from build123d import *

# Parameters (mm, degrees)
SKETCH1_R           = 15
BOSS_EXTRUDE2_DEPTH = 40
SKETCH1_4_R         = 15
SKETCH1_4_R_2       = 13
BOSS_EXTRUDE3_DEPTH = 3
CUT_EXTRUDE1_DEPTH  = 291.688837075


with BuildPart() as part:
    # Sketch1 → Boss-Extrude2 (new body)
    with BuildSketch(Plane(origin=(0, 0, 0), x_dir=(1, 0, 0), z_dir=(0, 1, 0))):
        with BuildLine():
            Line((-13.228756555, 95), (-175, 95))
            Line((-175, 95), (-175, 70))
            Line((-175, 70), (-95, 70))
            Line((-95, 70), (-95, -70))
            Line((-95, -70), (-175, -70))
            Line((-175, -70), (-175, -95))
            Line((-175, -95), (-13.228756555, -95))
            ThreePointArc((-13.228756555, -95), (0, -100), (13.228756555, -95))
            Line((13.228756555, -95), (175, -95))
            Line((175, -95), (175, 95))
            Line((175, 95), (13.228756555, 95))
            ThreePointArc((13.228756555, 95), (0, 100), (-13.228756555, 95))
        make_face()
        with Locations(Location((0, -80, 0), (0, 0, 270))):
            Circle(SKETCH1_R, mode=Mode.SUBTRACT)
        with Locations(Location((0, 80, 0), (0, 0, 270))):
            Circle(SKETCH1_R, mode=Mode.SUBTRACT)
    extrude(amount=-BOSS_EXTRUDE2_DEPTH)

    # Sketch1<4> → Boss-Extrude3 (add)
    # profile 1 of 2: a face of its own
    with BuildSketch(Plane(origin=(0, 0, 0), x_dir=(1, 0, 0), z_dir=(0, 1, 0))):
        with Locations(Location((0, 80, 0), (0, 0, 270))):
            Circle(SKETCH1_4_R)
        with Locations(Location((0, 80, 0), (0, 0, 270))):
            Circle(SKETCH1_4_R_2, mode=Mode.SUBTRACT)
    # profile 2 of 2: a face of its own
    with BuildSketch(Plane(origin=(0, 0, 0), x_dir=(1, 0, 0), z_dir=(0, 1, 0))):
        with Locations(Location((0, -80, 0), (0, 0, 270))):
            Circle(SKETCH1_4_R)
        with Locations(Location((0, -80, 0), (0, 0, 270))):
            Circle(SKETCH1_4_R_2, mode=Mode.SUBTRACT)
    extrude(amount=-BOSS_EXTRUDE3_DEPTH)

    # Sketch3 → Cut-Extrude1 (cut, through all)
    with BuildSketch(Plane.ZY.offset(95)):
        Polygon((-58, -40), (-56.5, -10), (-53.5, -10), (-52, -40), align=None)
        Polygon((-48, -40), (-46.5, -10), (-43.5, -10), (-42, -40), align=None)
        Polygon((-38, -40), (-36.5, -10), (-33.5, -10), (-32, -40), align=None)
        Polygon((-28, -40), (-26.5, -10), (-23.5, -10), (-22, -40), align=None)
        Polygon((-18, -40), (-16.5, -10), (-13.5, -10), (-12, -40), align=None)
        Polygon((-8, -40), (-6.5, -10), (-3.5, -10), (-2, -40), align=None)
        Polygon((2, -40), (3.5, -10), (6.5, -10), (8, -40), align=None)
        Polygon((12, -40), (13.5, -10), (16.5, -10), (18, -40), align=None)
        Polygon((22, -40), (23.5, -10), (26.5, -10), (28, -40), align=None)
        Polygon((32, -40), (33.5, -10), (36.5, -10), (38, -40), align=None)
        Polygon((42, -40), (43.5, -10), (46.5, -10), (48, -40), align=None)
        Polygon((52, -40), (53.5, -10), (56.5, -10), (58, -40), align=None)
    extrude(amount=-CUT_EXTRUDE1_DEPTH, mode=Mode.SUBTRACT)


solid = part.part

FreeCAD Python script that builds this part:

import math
import FreeCAD as App
import Part
import Sketcher


def add_polygon(sketch, points):
    """Adds a closed chain of lines whose ends are joined by coincident constraints."""
    first, n = sketch.GeometryCount, len(points)
    for a, b in zip(points, points[1:] + points[:1]):
        sketch.addGeometry(Part.LineSegment(App.Vector(*a, 0), App.Vector(*b, 0)), False)
    for i in range(n):
        sketch.addConstraint(Sketcher.Constraint("Coincident", first + i, 2, first + (i + 1) % n, 1))

doc = App.newDocument("Part")
body = doc.addObject("PartDesign::Body", "Body")

# Sketch on XZ plane
sketch1 = doc.addObject("Sketcher::SketchObject", "Sketch")
body.addObject(sketch1)
sketch1.AttachmentSupport = (doc.XZ_Plane, [""])
sketch1.MapMode = "FlatFace"
sketch1.addGeometry([
    Part.LineSegment(App.Vector(-13.228757, -95, 0), App.Vector(-175, -95, 0)),  # 0
    Part.LineSegment(App.Vector(-175, -95, 0), App.Vector(-175, -70, 0)),  # 1
    Part.LineSegment(App.Vector(-175, -70, 0), App.Vector(-95, -70, 0)),  # 2
    Part.LineSegment(App.Vector(-95, -70, 0), App.Vector(-95, 70, 0)),  # 3
    Part.LineSegment(App.Vector(-95, 70, 0), App.Vector(-175, 70, 0)),  # 4
    Part.LineSegment(App.Vector(-175, 70, 0), App.Vector(-175, 95, 0)),  # 5
    Part.LineSegment(App.Vector(-175, 95, 0), App.Vector(-13.228757, 95, 0)),  # 6
    Part.ArcOfCircle(Part.Circle(App.Vector(0, 80, 0), App.Vector(0, 0, 1), 20), math.radians(48.590378), math.radians(131.409622)),  # 7
    Part.LineSegment(App.Vector(13.228757, 95, 0), App.Vector(175, 95, 0)),  # 8
    Part.LineSegment(App.Vector(175, 95, 0), App.Vector(175, -95, 0)),  # 9
    Part.LineSegment(App.Vector(175, -95, 0), App.Vector(13.228757, -95, 0)),  # 10
    Part.ArcOfCircle(Part.Circle(App.Vector(0, -80, 0), App.Vector(0, 0, 1), 20), math.radians(-131.409622), math.radians(-48.590378)),  # 11
    Part.Circle(App.Vector(0, 80, 0), App.Vector(0, 0, 1), 15),  # 12
    Part.Circle(App.Vector(0, -80, 0), App.Vector(0, 0, 1), 15),  # 13
], False)
sketch1.addConstraint([
    Sketcher.Constraint("Coincident", 0, 2, 1, 1),
    Sketcher.Constraint("Coincident", 1, 2, 2, 1),
    Sketcher.Constraint("Coincident", 2, 2, 3, 1),
    Sketcher.Constraint("Coincident", 3, 2, 4, 1),
    Sketcher.Constraint("Coincident", 4, 2, 5, 1),
    Sketcher.Constraint("Coincident", 5, 2, 6, 1),
    Sketcher.Constraint("Coincident", 6, 2, 7, 2),
    Sketcher.Constraint("Coincident", 7, 1, 8, 1),
    Sketcher.Constraint("Coincident", 8, 2, 9, 1),
    Sketcher.Constraint("Coincident", 9, 2, 10, 1),
    Sketcher.Constraint("Coincident", 10, 2, 11, 2),
    Sketcher.Constraint("Coincident", 11, 1, 0, 1),
    Sketcher.Constraint("Horizontal", 0),
    Sketcher.Constraint("Vertical", 1),
    Sketcher.Constraint("Horizontal", 2),
    Sketcher.Constraint("Vertical", 3),
    Sketcher.Constraint("Horizontal", 4),
    Sketcher.Constraint("Vertical", 5),
    Sketcher.Constraint("Horizontal", 6),
    Sketcher.Constraint("Horizontal", 8),
    Sketcher.Constraint("Vertical", 9),
    Sketcher.Constraint("Horizontal", 10),
    Sketcher.Constraint("Coincident", 12, 3, 7, 3),
    Sketcher.Constraint("Coincident", 13, 3, 11, 3),
    Sketcher.Constraint("Equal", 7, 11),
    Sketcher.Constraint("Equal", 12, 13),
    Sketcher.Constraint("Symmetric", 7, 3, 11, 3, -1, 1),
    Sketcher.Constraint("Symmetric", 0, 2, 8, 2, -1, 1),
    Sketcher.Constraint("Symmetric", 5, 2, 9, 2, -1, 1),
    Sketcher.Constraint("Symmetric", 6, 2, 7, 1, -2),
    Sketcher.Constraint("Equal", 1, 5),
    Sketcher.Constraint("Diameter", 12, 30.0),
    Sketcher.Constraint("Radius", 7, 20.0),
    Sketcher.Constraint("DistanceX", 2, 1, 2, 2, 80.0),
    Sketcher.Constraint("DistanceY", 1, 1, 1, 2, 25.0),
    Sketcher.Constraint("DistanceY", 3, 1, 3, 2, 140.0),
    Sketcher.Constraint("DistanceY", -1, 1, 7, 3, 80.0),
    Sketcher.Constraint("DistanceX", 0, 2, -1, 1, 175.0),
])
pad1 = doc.addObject("PartDesign::Pad", "Pad")
body.addObject(pad1)
pad1.Profile = sketch1
pad1.Length = 40

# Sketch on XZ plane
sketch2 = doc.addObject("Sketcher::SketchObject", "Sketch001")
body.addObject(sketch2)
sketch2.AttachmentSupport = (doc.XZ_Plane, [""])
sketch2.MapMode = "FlatFace"
sketch2.addGeometry([
    Part.Circle(App.Vector(0, -80, 0), App.Vector(0, 0, 1), 15),
    Part.Circle(App.Vector(0, -80, 0), App.Vector(0, 0, 1), 13),
    Part.Circle(App.Vector(0, 80, 0), App.Vector(0, 0, 1), 15),
    Part.Circle(App.Vector(0, 80, 0), App.Vector(0, 0, 1), 13),
], False)
sketch2.addConstraint([
    Sketcher.Constraint("Coincident", 1, 3, 0, 3),
    Sketcher.Constraint("Coincident", 3, 3, 2, 3),
    Sketcher.Constraint("Equal", 0, 2),
    Sketcher.Constraint("Equal", 1, 3),
    Sketcher.Constraint("Symmetric", 0, 3, 2, 3, -1, 1),
    Sketcher.Constraint("PointOnObject", 0, 3, -2),
    Sketcher.Constraint("Diameter", 0, 30.0),
    Sketcher.Constraint("Diameter", 1, 26.0),
    Sketcher.Constraint("DistanceY", 0, 3, -1, 1, 80.0),
])
pad2 = doc.addObject("PartDesign::Pad", "Pad001")
body.addObject(pad2)
pad2.Profile = sketch2
pad2.Length = 3

# Sketch on YZ plane
sketch3 = doc.addObject("Sketcher::SketchObject", "Sketch002")
body.addObject(sketch3)
sketch3.AttachmentSupport = (doc.YZ_Plane, [""])
sketch3.MapMode = "FlatFace"
sketch3.AttachmentOffset = App.Placement(App.Vector(0, 0, -95), App.Rotation())
add_polygon(sketch3, [(-10, -56.5), (-40, -58), (-40, -52), (-10, -53.5)])  # lines 0-3
add_polygon(sketch3, [(-10, -46.5), (-40, -48), (-40, -42), (-10, -43.5)])  # lines 4-7
add_polygon(sketch3, [(-10, -36.5), (-40, -38), (-40, -32), (-10, -33.5)])  # lines 8-11
add_polygon(sketch3, [(-10, -26.5), (-40, -28), (-40, -22), (-10, -23.5)])  # lines 12-15
add_polygon(sketch3, [(-10, -16.5), (-40, -18), (-40, -12), (-10, -13.5)])  # lines 16-19
add_polygon(sketch3, [(-10, -6.5), (-40, -8), (-40, -2), (-10, -3.5)])  # lines 20-23
add_polygon(sketch3, [(-10, 3.5), (-40, 2), (-40, 8), (-10, 6.5)])  # lines 24-27
add_polygon(sketch3, [(-10, 13.5), (-40, 12), (-40, 18), (-10, 16.5)])  # lines 28-31
add_polygon(sketch3, [(-10, 23.5), (-40, 22), (-40, 28), (-10, 26.5)])  # lines 32-35
add_polygon(sketch3, [(-10, 33.5), (-40, 32), (-40, 38), (-10, 36.5)])  # lines 36-39
add_polygon(sketch3, [(-10, 43.5), (-40, 42), (-40, 48), (-10, 46.5)])  # lines 40-43
add_polygon(sketch3, [(-10, 53.5), (-40, 52), (-40, 58), (-10, 56.5)])  # lines 44-47
sketch3.addConstraint([
    Sketcher.Constraint("Vertical", 1),
    Sketcher.Constraint("Vertical", 3),
    Sketcher.Constraint("Vertical", 5),
    Sketcher.Constraint("Vertical", 7),
    Sketcher.Constraint("Vertical", 9),
    Sketcher.Constraint("Vertical", 11),
    Sketcher.Constraint("Vertical", 13),
    Sketcher.Constraint("Vertical", 15),
    Sketcher.Constraint("Vertical", 17),
    Sketcher.Constraint("Vertical", 19),
    Sketcher.Constraint("Vertical", 21),
    Sketcher.Constraint("Vertical", 23),
    Sketcher.Constraint("Vertical", 25),
    Sketcher.Constraint("Vertical", 27),
    Sketcher.Constraint("Vertical", 29),
    Sketcher.Constraint("Vertical", 31),
    Sketcher.Constraint("Vertical", 33),
    Sketcher.Constraint("Vertical", 35),
    Sketcher.Constraint("Vertical", 37),
    Sketcher.Constraint("Vertical", 39),
    Sketcher.Constraint("Vertical", 41),
    Sketcher.Constraint("Vertical", 43),
    Sketcher.Constraint("Vertical", 45),
    Sketcher.Constraint("Vertical", 47),
    Sketcher.Constraint("Symmetric", 21, 2, 24, 2, -1),
    Sketcher.Constraint("Symmetric", 23, 2, 26, 2, -1),
    Sketcher.Constraint("Symmetric", 17, 2, 28, 2, -1),
    Sketcher.Constraint("Symmetric", 19, 2, 30, 2, -1),
    Sketcher.Constraint("Symmetric", 13, 2, 32, 2, -1),
    Sketcher.Constraint("Symmetric", 15, 2, 34, 2, -1),
    Sketcher.Constraint("Symmetric", 9, 2, 36, 2, -1),
    Sketcher.Constraint("Symmetric", 11, 2, 38, 2, -1),
    Sketcher.Constraint("Symmetric", 5, 2, 40, 2, -1),
    Sketcher.Constraint("Symmetric", 7, 2, 42, 2, -1),
    Sketcher.Constraint("Symmetric", 1, 2, 44, 2, -1),
    Sketcher.Constraint("Symmetric", 3, 2, 46, 2, -1),
    Sketcher.Constraint("Parallel", 0, 4),
    Sketcher.Constraint("Parallel", 2, 6),
    Sketcher.Constraint("Parallel", 4, 8),
    Sketcher.Constraint("Parallel", 6, 10),
    Sketcher.Constraint("Parallel", 8, 12),
    Sketcher.Constraint("Parallel", 10, 14),
    Sketcher.Constraint("Parallel", 12, 16),
    Sketcher.Constraint("Parallel", 14, 18),
    Sketcher.Constraint("Parallel", 16, 20),
    Sketcher.Constraint("Parallel", 18, 22),
    Sketcher.Constraint("Parallel", 20, 24),
    Sketcher.Constraint("Parallel", 22, 26),
    Sketcher.Constraint("Parallel", 24, 28),
    Sketcher.Constraint("Parallel", 26, 30),
    Sketcher.Constraint("Parallel", 28, 32),
    Sketcher.Constraint("Parallel", 30, 34),
    Sketcher.Constraint("Parallel", 32, 36),
    Sketcher.Constraint("Parallel", 34, 38),
    Sketcher.Constraint("Parallel", 36, 40),
    Sketcher.Constraint("Parallel", 38, 42),
    Sketcher.Constraint("Parallel", 40, 44),
    Sketcher.Constraint("Parallel", 42, 46),
    Sketcher.Constraint("Vertical", 1, 2, 4, 2),
    Sketcher.Constraint("Vertical", 3, 2, 6, 2),
    Sketcher.Constraint("Vertical", 5, 2, 8, 2),
    Sketcher.Constraint("Vertical", 7, 2, 10, 2),
    Sketcher.Constraint("Vertical", 9, 2, 12, 2),
    Sketcher.Constraint("Vertical", 11, 2, 14, 2),
    Sketcher.Constraint("Vertical", 13, 2, 16, 2),
    Sketcher.Constraint("Vertical", 15, 2, 18, 2),
    Sketcher.Constraint("Vertical", 17, 2, 20, 2),
    Sketcher.Constraint("Vertical", 19, 2, 22, 2),
    Sketcher.Constraint("Equal", 1, 5),
    Sketcher.Constraint("Equal", 5, 9),
    Sketcher.Constraint("Equal", 9, 13),
    Sketcher.Constraint("Equal", 13, 17),
    Sketcher.Constraint("Equal", 17, 21),
    Sketcher.Constraint("Equal", 21, 25),
    Sketcher.Constraint("DistanceY", 1, 1, 1, 2, 6.0),
    Sketcher.Constraint("DistanceY", 3, 2, 3, 1, 3.0),
    Sketcher.Constraint("DistanceX", 0, 2, -1, 1, 40.0),
    Sketcher.Constraint("DistanceY", 0, 2, -1, 1, 58.0),
    Sketcher.Constraint("DistanceX", 2, 2, -1, 1, 10.0),
    Sketcher.Constraint("DistanceY", 4, 2, -1, 1, 48.0),
    Sketcher.Constraint("DistanceY", 8, 2, -1, 1, 38.0),
    Sketcher.Constraint("DistanceY", 12, 2, -1, 1, 28.0),
    Sketcher.Constraint("DistanceY", 16, 2, -1, 1, 18.0),
    Sketcher.Constraint("DistanceY", 20, 2, -1, 1, 8.0),
])
pocket1 = doc.addObject("PartDesign::Pocket", "Pocket")
body.addObject(pocket1)
pocket1.Profile = sketch3
pocket1.Type = "ThroughAll"
pocket1.Reversed = True

doc.recompute()
